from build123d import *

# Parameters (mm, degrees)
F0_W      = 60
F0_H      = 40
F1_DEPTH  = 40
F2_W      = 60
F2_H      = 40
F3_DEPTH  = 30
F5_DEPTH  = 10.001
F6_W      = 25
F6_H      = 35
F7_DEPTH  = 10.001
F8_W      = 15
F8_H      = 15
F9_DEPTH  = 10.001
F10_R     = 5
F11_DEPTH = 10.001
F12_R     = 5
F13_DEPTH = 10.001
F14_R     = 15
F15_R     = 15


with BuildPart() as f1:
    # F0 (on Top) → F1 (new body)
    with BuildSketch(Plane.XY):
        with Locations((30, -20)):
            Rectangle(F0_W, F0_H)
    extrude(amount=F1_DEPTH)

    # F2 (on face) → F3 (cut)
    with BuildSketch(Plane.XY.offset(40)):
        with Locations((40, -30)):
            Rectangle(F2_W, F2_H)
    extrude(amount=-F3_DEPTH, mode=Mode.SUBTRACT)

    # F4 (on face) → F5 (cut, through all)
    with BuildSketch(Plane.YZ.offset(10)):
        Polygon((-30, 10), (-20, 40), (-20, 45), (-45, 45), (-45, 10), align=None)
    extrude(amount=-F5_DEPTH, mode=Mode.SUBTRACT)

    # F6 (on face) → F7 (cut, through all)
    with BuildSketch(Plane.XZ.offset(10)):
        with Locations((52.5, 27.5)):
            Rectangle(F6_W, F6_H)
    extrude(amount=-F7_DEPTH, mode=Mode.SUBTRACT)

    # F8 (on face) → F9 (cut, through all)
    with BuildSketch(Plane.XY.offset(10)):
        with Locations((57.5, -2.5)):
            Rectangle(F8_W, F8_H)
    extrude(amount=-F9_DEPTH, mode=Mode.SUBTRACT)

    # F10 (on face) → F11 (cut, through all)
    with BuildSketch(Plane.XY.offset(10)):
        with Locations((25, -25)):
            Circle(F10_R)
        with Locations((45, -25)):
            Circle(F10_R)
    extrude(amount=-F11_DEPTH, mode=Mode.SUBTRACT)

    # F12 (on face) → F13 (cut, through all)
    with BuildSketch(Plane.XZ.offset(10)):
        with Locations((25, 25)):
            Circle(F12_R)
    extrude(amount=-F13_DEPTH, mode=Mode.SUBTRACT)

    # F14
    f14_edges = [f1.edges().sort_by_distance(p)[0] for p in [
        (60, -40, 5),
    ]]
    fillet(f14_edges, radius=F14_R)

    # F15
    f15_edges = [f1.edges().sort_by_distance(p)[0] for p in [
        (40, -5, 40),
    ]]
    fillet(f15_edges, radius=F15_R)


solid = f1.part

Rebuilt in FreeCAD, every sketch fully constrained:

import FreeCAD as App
import Part
import Sketcher
from FreeCAD import Vector


def edges_at(feature, points):
    """Names of the edges that pass closest to the given points."""
    edges = feature.Shape.Edges
    near = lambda p: min(range(len(edges)), key=lambda i: edges[i].distToShape(Part.Vertex(*p))[0])
    return sorted({f"Edge{near(p) + 1}" for p in points})


def add_polygon(sketch, points):
    """Adds a closed chain of lines whose ends are joined by coincident constraints."""
    first, n = sketch.GeometryCount, len(points)
    for a, b in zip(points, points[1:] + points[:1]):
        sketch.addGeometry(Part.LineSegment(App.Vector(*a, 0), App.Vector(*b, 0)), False)
    for i in range(n):
        sketch.addConstraint(Sketcher.Constraint("Coincident", first + i, 2, first + (i + 1) % n, 1))

doc = App.newDocument("Part")
body = doc.addObject("PartDesign::Body", "Body")

# Sketch on XY plane
sketch1 = body.newObject("Sketcher::SketchObject", "Sketch")
sketch1.AttachmentSupport = (doc.getObject("XY_Plane"), [""])
sketch1.MapMode = "FlatFace"
add_polygon(sketch1, [(0, 0), (0, -40), (60, -40), (60, 0)])  # lines 0-3
sketch1.addConstraint(Sketcher.Constraint("Vertical", 0))
sketch1.addConstraint(Sketcher.Constraint("Horizontal", 1))
sketch1.addConstraint(Sketcher.Constraint("Vertical", 2))
sketch1.addConstraint(Sketcher.Constraint("Horizontal", 3))
sketch1.addConstraint(Sketcher.Constraint("Coincident", 3, 2, -1, 1))
sketch1.addConstraint(Sketcher.Constraint("DistanceX", 1, 1, 1, 2, 60.0))
sketch1.addConstraint(Sketcher.Constraint("DistanceY", 0, 2, 0, 1, 40.0))
pad1 = body.newObject("PartDesign::Pad", "Pad")
pad1.Profile = sketch1
pad1.Length = 40

# Sketch on XY plane
sketch2 = body.newObject("Sketcher::SketchObject", "Sketch001")
sketch2.AttachmentSupport = (doc.getObject("XY_Plane"), [""])
sketch2.MapMode = "FlatFace"
sketch2.AttachmentOffset = App.Placement(Vector(0, 0, 40), App.Rotation())
add_polygon(sketch2, [(10, -10), (10, -50), (70, -50), (70, -10)])  # lines 0-3
sketch2.addConstraint(Sketcher.Constraint("Vertical", 0))
sketch2.addConstraint(Sketcher.Constraint("Horizontal", 1))
sketch2.addConstraint(Sketcher.Constraint("Vertical", 2))
sketch2.addConstraint(Sketcher.Constraint("Horizontal", 3))
sketch2.addConstraint(Sketcher.Constraint("DistanceX", 1, 1, 1, 2, 60.0))
sketch2.addConstraint(Sketcher.Constraint("DistanceY", 0, 2, 0, 1, 40.0))
sketch2.addConstraint(Sketcher.Constraint("DistanceX", -1, 1, 0, 2, 10.0))
sketch2.addConstraint(Sketcher.Constraint("DistanceY", 0, 2, -1, 1, 50.0))
pocket1 = body.newObject("PartDesign::Pocket", "Pocket")
pocket1.Profile = sketch2
pocket1.Length = 30

# Sketch on YZ plane
sketch3 = body.newObject("Sketcher::SketchObject", "Sketch002")
sketch3.AttachmentSupport = (doc.getObject("YZ_Plane"), [""])
sketch3.MapMode = "FlatFace"
sketch3.AttachmentOffset = App.Placement(Vector(0, 0, 10), App.Rotation())
add_polygon(sketch3, [(-30, 10), (-20, 40), (-20, 45), (-45, 45), (-45, 10)])  # lines 0-4
sketch3.addConstraint(Sketcher.Constraint("Vertical", 1))
sketch3.addConstraint(Sketcher.Constraint("Horizontal", 2))
sketch3.addConstraint(Sketcher.Constraint("Vertical", 3))
sketch3.addConstraint(Sketcher.Constraint("Horizontal", 4))
sketch3.addConstraint(Sketcher.Constraint("DistanceX", 2, 2, 2, 1, 25.0))
sketch3.addConstraint(Sketcher.Constraint("DistanceX", 4, 1, 4, 2, 15.0))
sketch3.addConstraint(Sketcher.Constraint("DistanceY", 1, 1, 1, 2, 5.0))
sketch3.addConstraint(Sketcher.Constraint("DistanceY", 3, 2, 3, 1, 35.0))
sketch3.addConstraint(Sketcher.Constraint("DistanceX", 0, 2, -1, 1, 20.0))
sketch3.addConstraint(Sketcher.Constraint("DistanceY", -1, 1, 0, 2, 40.0))
pocket2 = body.newObject("PartDesign::Pocket", "Pocket001")
pocket2.Profile = sketch3
pocket2.Type = "ThroughAll"

# Sketch on XZ plane
sketch4 = body.newObject("Sketcher::SketchObject", "Sketch003")
sketch4.AttachmentSupport = (doc.getObject("XZ_Plane"), [""])
sketch4.MapMode = "FlatFace"
sketch4.AttachmentOffset = App.Placement(Vector(0, 0, 10), App.Rotation())
add_polygon(sketch4, [(40, 45), (40, 10), (65, 10), (65, 45)])  # lines 0-3
sketch4.addConstraint(Sketcher.Constraint("Vertical", 0))
sketch4.addConstraint(Sketcher.Constraint("Horizontal", 1))
sketch4.addConstraint(Sketcher.Constraint("Vertical", 2))
sketch4.addConstraint(Sketcher.Constraint("Horizontal", 3))
sketch4.addConstraint(Sketcher.Constraint("DistanceX", 1, 1, 1, 2, 25.0))
sketch4.addConstraint(Sketcher.Constraint("DistanceY", 0, 2, 0, 1, 35.0))
sketch4.addConstraint(Sketcher.Constraint("DistanceX", -1, 1, 0, 2, 40.0))
sketch4.addConstraint(Sketcher.Constraint("DistanceY", -1, 1, 0, 2, 10.0))
pocket3 = body.newObject("PartDesign::Pocket", "Pocket002")
pocket3.Profile = sketch4
pocket3.Type = "ThroughAll"

# Sketch on XY plane
sketch5 = body.newObject("Sketcher::SketchObject", "Sketch004")
sketch5.AttachmentSupport = (doc.getObject("XY_Plane"), [""])
sketch5.MapMode = "FlatFace"
sketch5.AttachmentOffset = App.Placement(Vector(0, 0, 10), App.Rotation())
add_polygon(sketch5, [(50, 5), (50, -10), (65, -10), (65, 5)])  # lines 0-3
sketch5.addConstraint(Sketcher.Constraint("Vertical", 0))
sketch5.addConstraint(Sketcher.Constraint("Horizontal", 1))
sketch5.addConstraint(Sketcher.Constraint("Vertical", 2))
sketch5.addConstraint(Sketcher.Constraint("Horizontal", 3))
sketch5.addConstraint(Sketcher.Constraint("Equal", 3, 0))
sketch5.addConstraint(Sketcher.Constraint("DistanceX", 1, 1, 1, 2, 15.0))
sketch5.addConstraint(Sketcher.Constraint("DistanceX", -1, 1, 0, 2, 50.0))
sketch5.addConstraint(Sketcher.Constraint("DistanceY", 0, 2, -1, 1, 10.0))
pocket4 = body.newObject("PartDesign::Pocket", "Pocket003")
pocket4.Profile = sketch5
pocket4.Type = "ThroughAll"

# Sketch on XY plane
sketch6 = body.newObject("Sketcher::SketchObject", "Sketch005")
sketch6.AttachmentSupport = (doc.getObject("XY_Plane"), [""])
sketch6.MapMode = "FlatFace"
sketch6.AttachmentOffset = App.Placement(Vector(0, 0, 10), App.Rotation())
sketch6.addGeometry(Part.Circle(Vector(25, -25, 0), Vector(0, 0, 1), 5), False)
sketch6.addGeometry(Part.Circle(Vector(45, -25, 0), Vector(0, 0, 1), 5), False)
sketch6.addConstraint(Sketcher.Constraint("Equal", 0, 1))
sketch6.addConstraint(Sketcher.Constraint("Horizontal", 0, 3, 1, 3))
sketch6.addConstraint(Sketcher.Constraint("Diameter", 0, 10.0))
sketch6.addConstraint(Sketcher.Constraint("DistanceX", -1, 1, 0, 3, 25.0))
sketch6.addConstraint(Sketcher.Constraint("DistanceY", 0, 3, -1, 1, 25.0))
sketch6.addConstraint(Sketcher.Constraint("DistanceX", -1, 1, 1, 3, 45.0))
pocket5 = body.newObject("PartDesign::Pocket", "Pocket004")
pocket5.Profile = sketch6
pocket5.Type = "ThroughAll"

# Sketch on XZ plane
sketch7 = body.newObject("Sketcher::SketchObject", "Sketch006")
sketch7.AttachmentSupport = (doc.getObject("XZ_Plane"), [""])
sketch7.MapMode = "FlatFace"
sketch7.AttachmentOffset = App.Placement(Vector(0, 0, 10), App.Rotation())
sketch7.addGeometry(Part.Circle(Vector(25, 25, 0), Vector(0, 0, 1), 5), False)
sketch7.addConstraint(Sketcher.Constraint("Diameter", 0, 10.0))
sketch7.addConstraint(Sketcher.Constraint("DistanceX", -1, 1, 0, 3, 25.0))
sketch7.addConstraint(Sketcher.Constraint("DistanceY", -1, 1, 0, 3, 25.0))
pocket6 = body.newObject("PartDesign::Pocket", "Pocket005")
pocket6.Profile = sketch7
pocket6.Type = "ThroughAll"
doc.recompute()

fillet = body.newObject("PartDesign::Fillet", "Fillet")
fillet.Base = (pocket6, edges_at(pocket6, [(60, -40, 5)]))
fillet.Radius = 15
doc.recompute()

fillet2 = body.newObject("PartDesign::Fillet", "Fillet001")
fillet2.Base = (fillet, edges_at(fillet, [(40, -5, 40)]))
fillet2.Radius = 15

doc.recompute()
